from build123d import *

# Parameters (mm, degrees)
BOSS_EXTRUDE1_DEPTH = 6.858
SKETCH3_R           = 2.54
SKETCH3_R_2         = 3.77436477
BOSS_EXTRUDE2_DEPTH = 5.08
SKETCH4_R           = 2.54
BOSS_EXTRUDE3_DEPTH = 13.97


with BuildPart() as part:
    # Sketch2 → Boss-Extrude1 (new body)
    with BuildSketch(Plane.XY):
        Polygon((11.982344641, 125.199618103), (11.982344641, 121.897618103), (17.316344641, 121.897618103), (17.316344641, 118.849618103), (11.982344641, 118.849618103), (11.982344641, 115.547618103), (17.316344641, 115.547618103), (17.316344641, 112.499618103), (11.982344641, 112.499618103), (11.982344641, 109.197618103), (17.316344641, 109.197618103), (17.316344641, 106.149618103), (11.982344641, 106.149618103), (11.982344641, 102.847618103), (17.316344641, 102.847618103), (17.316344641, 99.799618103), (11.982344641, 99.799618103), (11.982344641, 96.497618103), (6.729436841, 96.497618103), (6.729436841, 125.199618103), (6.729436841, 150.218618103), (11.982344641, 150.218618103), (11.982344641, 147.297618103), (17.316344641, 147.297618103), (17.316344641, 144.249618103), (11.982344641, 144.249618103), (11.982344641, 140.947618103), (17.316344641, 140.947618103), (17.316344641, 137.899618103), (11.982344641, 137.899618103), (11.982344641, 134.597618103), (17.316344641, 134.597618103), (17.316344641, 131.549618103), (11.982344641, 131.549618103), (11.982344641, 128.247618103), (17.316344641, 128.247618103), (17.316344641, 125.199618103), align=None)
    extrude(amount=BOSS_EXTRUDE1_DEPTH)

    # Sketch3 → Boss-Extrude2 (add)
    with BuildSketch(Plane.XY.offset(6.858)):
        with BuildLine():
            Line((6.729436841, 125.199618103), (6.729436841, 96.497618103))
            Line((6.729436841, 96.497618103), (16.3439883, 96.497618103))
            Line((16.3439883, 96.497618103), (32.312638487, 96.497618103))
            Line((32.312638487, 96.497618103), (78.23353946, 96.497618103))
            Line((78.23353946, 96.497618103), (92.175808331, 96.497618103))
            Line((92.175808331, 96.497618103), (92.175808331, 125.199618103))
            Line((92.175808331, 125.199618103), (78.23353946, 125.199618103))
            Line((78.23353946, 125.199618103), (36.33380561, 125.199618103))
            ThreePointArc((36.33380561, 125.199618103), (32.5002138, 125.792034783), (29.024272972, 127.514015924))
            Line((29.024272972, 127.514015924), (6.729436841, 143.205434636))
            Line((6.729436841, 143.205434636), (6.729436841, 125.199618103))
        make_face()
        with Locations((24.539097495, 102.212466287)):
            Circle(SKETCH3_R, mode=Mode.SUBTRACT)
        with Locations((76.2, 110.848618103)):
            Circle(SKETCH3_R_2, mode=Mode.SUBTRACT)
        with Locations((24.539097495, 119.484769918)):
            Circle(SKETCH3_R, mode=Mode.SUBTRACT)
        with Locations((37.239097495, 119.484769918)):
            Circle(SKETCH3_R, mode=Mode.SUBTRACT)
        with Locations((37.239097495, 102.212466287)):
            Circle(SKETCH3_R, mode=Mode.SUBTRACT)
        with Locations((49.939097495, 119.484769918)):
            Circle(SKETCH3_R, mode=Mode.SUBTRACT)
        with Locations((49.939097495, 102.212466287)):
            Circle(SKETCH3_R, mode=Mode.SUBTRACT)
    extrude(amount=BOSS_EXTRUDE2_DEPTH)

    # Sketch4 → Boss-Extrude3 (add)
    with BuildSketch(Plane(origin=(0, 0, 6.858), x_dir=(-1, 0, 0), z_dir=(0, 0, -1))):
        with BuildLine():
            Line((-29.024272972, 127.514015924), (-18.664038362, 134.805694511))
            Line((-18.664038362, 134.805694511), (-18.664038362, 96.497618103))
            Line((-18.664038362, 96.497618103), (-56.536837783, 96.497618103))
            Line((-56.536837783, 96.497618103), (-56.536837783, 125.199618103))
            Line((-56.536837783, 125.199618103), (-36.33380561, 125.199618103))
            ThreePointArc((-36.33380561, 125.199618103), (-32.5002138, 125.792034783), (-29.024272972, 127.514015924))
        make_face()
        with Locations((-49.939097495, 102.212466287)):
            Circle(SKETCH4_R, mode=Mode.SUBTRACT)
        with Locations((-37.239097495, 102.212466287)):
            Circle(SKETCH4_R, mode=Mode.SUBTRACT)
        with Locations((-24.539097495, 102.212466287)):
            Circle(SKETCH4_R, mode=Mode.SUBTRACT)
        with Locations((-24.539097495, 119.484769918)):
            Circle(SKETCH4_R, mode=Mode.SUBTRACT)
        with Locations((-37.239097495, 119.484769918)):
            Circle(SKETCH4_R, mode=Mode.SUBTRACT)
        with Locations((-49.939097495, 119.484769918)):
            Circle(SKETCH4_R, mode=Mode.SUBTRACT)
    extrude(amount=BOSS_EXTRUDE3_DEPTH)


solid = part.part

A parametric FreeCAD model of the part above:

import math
import FreeCAD as App
import Part
import Sketcher
from FreeCAD import Vector
Q = App.Units.Quantity

doc = App.newDocument("Part")
body = doc.addObject("PartDesign::Body", "Body")

# Sketch on XY plane
sketch1 = doc.addObject("Sketcher::SketchObject", "Sketch")
body.addObject(sketch1)
sketch1.AttachmentSupport = (doc.XY_Plane, [""])
sketch1.MapMode = "FlatFace"
sketch1.addGeometry([
    Part.LineSegment(Vector(11.982345, 121.897618, 0), Vector(11.982345, 125.199618, 0)),  # 0
    Part.LineSegment(Vector(11.982345, 125.199618, 0), Vector(17.316345, 125.199618, 0)),  # 1
    Part.LineSegment(Vector(17.316345, 125.199618, 0), Vector(17.316345, 128.247618, 0)),  # 2
    Part.LineSegment(Vector(17.316345, 128.247618, 0), Vector(11.982345, 128.247618, 0)),  # 3
    Part.LineSegment(Vector(11.982345, 128.247618, 0), Vector(11.982345, 131.549618, 0)),  # 4
    Part.LineSegment(Vector(11.982345, 131.549618, 0), Vector(17.316345, 131.549618, 0)),  # 5
    Part.LineSegment(Vector(17.316345, 131.549618, 0), Vector(17.316345, 134.597618, 0)),  # 6
    Part.LineSegment(Vector(17.316345, 134.597618, 0), Vector(11.982345, 134.597618, 0)),  # 7
    Part.LineSegment(Vector(11.982345, 134.597618, 0), Vector(11.982345, 137.899618, 0)),  # 8
    Part.LineSegment(Vector(11.982345, 137.899618, 0), Vector(17.316345, 137.899618, 0)),  # 9
    Part.LineSegment(Vector(17.316345, 137.899618, 0), Vector(17.316345, 140.947618, 0)),  # 10
    Part.LineSegment(Vector(17.316345, 140.947618, 0), Vector(11.982345, 140.947618, 0)),  # 11
    Part.LineSegment(Vector(11.982345, 140.947618, 0), Vector(11.982345, 144.249618, 0)),  # 12
    Part.LineSegment(Vector(11.982345, 144.249618, 0), Vector(17.316345, 144.249618, 0)),  # 13
    Part.LineSegment(Vector(17.316345, 144.249618, 0), Vector(17.316345, 147.297618, 0)),  # 14
    Part.LineSegment(Vector(17.316345, 147.297618, 0), Vector(11.982345, 147.297618, 0)),  # 15
    Part.LineSegment(Vector(11.982345, 147.297618, 0), Vector(11.982345, 150.218618, 0)),  # 16
    Part.LineSegment(Vector(11.982345, 150.218618, 0), Vector(6.729437, 150.218618, 0)),  # 17
    Part.LineSegment(Vector(6.729437, 150.218618, 0), Vector(6.729437, 96.497618, 0)),  # 18
    Part.LineSegment(Vector(6.729437, 96.497618, 0), Vector(11.982345, 96.497618, 0)),  # 19
    Part.LineSegment(Vector(11.982345, 96.497618, 0), Vector(11.982345, 99.799618, 0)),  # 20
    Part.LineSegment(Vector(11.982345, 99.799618, 0), Vector(17.316345, 99.799618, 0)),  # 21
    Part.LineSegment(Vector(17.316345, 99.799618, 0), Vector(17.316345, 102.847618, 0)),  # 22
    Part.LineSegment(Vector(17.316345, 102.847618, 0), Vector(11.982345, 102.847618, 0)),  # 23
    Part.LineSegment(Vector(11.982345, 102.847618, 0), Vector(11.982345, 106.149618, 0)),  # 24
    Part.LineSegment(Vector(11.982345, 106.149618, 0), Vector(17.316345, 106.149618, 0)),  # 25
    Part.LineSegment(Vector(17.316345, 106.149618, 0), Vector(17.316345, 109.197618, 0)),  # 26
    Part.LineSegment(Vector(17.316345, 109.197618, 0), Vector(11.982345, 109.197618, 0)),  # 27
    Part.LineSegment(Vector(11.982345, 109.197618, 0), Vector(11.982345, 112.499618, 0)),  # 28
    Part.LineSegment(Vector(11.982345, 112.499618, 0), Vector(17.316345, 112.499618, 0)),  # 29
    Part.LineSegment(Vector(17.316345, 112.499618, 0), Vector(17.316345, 115.547618, 0)),  # 30
    Part.LineSegment(Vector(17.316345, 115.547618, 0), Vector(11.982345, 115.547618, 0)),  # 31
    Part.LineSegment(Vector(11.982345, 115.547618, 0), Vector(11.982345, 118.849618, 0)),  # 32
    Part.LineSegment(Vector(11.982345, 118.849618, 0), Vector(17.316345, 118.849618, 0)),  # 33
    Part.LineSegment(Vector(17.316345, 118.849618, 0), Vector(17.316345, 121.897618, 0)),  # 34
    Part.LineSegment(Vector(17.316345, 121.897618, 0), Vector(11.982345, 121.897618, 0)),  # 35
], False)
sketch1.addConstraint([
    Sketcher.Constraint("Coincident", 0, 2, 1, 1),
    Sketcher.Constraint("Coincident", 1, 2, 2, 1),
    Sketcher.Constraint("Coincident", 2, 2, 3, 1),
    Sketcher.Constraint("Coincident", 3, 2, 4, 1),
    Sketcher.Constraint("Coincident", 4, 2, 5, 1),
    Sketcher.Constraint("Coincident", 5, 2, 6, 1),
    Sketcher.Constraint("Coincident", 6, 2, 7, 1),
    Sketcher.Constraint("Coincident", 7, 2, 8, 1),
    Sketcher.Constraint("Coincident", 8, 2, 9, 1),
    Sketcher.Constraint("Coincident", 9, 2, 10, 1),
    Sketcher.Constraint("Coincident", 10, 2, 11, 1),
    Sketcher.Constraint("Coincident", 11, 2, 12, 1),
    Sketcher.Constraint("Coincident", 12, 2, 13, 1),
    Sketcher.Constraint("Coincident", 13, 2, 14, 1),
    Sketcher.Constraint("Coincident", 14, 2, 15, 1),
    Sketcher.Constraint("Coincident", 15, 2, 16, 1),
    Sketcher.Constraint("Coincident", 16, 2, 17, 1),
    Sketcher.Constraint("Coincident", 17, 2, 18, 1),
    Sketcher.Constraint("Coincident", 18, 2, 19, 1),
    Sketcher.Constraint("Coincident", 19, 2, 20, 1),
    Sketcher.Constraint("Coincident", 20, 2, 21, 1),
    Sketcher.Constraint("Coincident", 21, 2, 22, 1),
    Sketcher.Constraint("Coincident", 22, 2, 23, 1),
    Sketcher.Constraint("Coincident", 23, 2, 24, 1),
    Sketcher.Constraint("Coincident", 24, 2, 25, 1),
    Sketcher.Constraint("Coincident", 25, 2, 26, 1),
    Sketcher.Constraint("Coincident", 26, 2, 27, 1),
    Sketcher.Constraint("Coincident", 27, 2, 28, 1),
    Sketcher.Constraint("Coincident", 28, 2, 29, 1),
    Sketcher.Constraint("Coincident", 29, 2, 30, 1),
    Sketcher.Constraint("Coincident", 30, 2, 31, 1),
    Sketcher.Constraint("Coincident", 31, 2, 32, 1),
    Sketcher.Constraint("Coincident", 32, 2, 33, 1),
    Sketcher.Constraint("Coincident", 33, 2, 34, 1),
    Sketcher.Constraint("Coincident", 34, 2, 35, 1),
    Sketcher.Constraint("Coincident", 35, 2, 0, 1),
    Sketcher.Constraint("Vertical", 0),
    Sketcher.Constraint("Horizontal", 1),
    Sketcher.Constraint("Vertical", 2),
    Sketcher.Constraint("Horizontal", 3),
    Sketcher.Constraint("Vertical", 4),
    Sketcher.Constraint("Horizontal", 5),
    Sketcher.Constraint("Vertical", 6),
    Sketcher.Constraint("Horizontal", 7),
    Sketcher.Constraint("Vertical", 8),
    Sketcher.Constraint("Horizontal", 9),
    Sketcher.Constraint("Vertical", 10),
    Sketcher.Constraint("Horizontal", 11),
    Sketcher.Constraint("Vertical", 12),
    Sketcher.Constraint("Horizontal", 13),
    Sketcher.Constraint("Vertical", 14),
    Sketcher.Constraint("Horizontal", 15),
    Sketcher.Constraint("Vertical", 16),
    Sketcher.Constraint("Horizontal", 17),
    Sketcher.Constraint("Vertical", 18),
    Sketcher.Constraint("Horizontal", 19),
    Sketcher.Constraint("Vertical", 20),
    Sketcher.Constraint("Horizontal", 21),
    Sketcher.Constraint("Vertical", 22),
    Sketcher.Constraint("Horizontal", 23),
    Sketcher.Constraint("Vertical", 24),
    Sketcher.Constraint("Horizontal", 25),
    Sketcher.Constraint("Vertical", 26),
    Sketcher.Constraint("Horizontal", 27),
    Sketcher.Constraint("Vertical", 28),
    Sketcher.Constraint("Horizontal", 29),
    Sketcher.Constraint("Vertical", 30),
    Sketcher.Constraint("Horizontal", 31),
    Sketcher.Constraint("Vertical", 32),
    Sketcher.Constraint("Horizontal", 33),
    Sketcher.Constraint("Vertical", 34),
    Sketcher.Constraint("Horizontal", 35),
    Sketcher.Constraint("Vertical", 0, 2, 3, 2),
    Sketcher.Constraint("Vertical", 2, 2, 5, 2),
    Sketcher.Constraint("Vertical", 4, 2, 7, 2),
    Sketcher.Constraint("Vertical", 6, 2, 9, 2),
    Sketcher.Constraint("Vertical", 8, 2, 11, 2),
    Sketcher.Constraint("Vertical", 10, 2, 13, 2),
    Sketcher.Constraint("Vertical", 12, 2, 15, 2),
    Sketcher.Constraint("Vertical", 16, 2, 19, 2),
    Sketcher.Constraint("Vertical", 14, 2, 21, 2),
    Sketcher.Constraint("Vertical", 20, 2, 23, 2),
    Sketcher.Constraint("Vertical", 22, 2, 25, 2),
    Sketcher.Constraint("Vertical", 24, 2, 27, 2),
    Sketcher.Constraint("Vertical", 26, 2, 29, 2),
    Sketcher.Constraint("Vertical", 28, 2, 31, 2),
    Sketcher.Constraint("Vertical", 30, 2, 33, 2),
    Sketcher.Constraint("Equal", 0, 4),
    Sketcher.Constraint("Equal", 2, 6),
    Sketcher.Constraint("Equal", 4, 8),
    Sketcher.Constraint("Equal", 6, 10),
    Sketcher.Constraint("Equal", 8, 12),
    Sketcher.Constraint("Equal", 10, 14),
    Sketcher.Constraint("Equal", 12, 20),
    Sketcher.Constraint("Equal", 14, 22),
    Sketcher.Constraint("Equal", 20, 24),
    Sketcher.Constraint("Equal", 22, 26),
    Sketcher.Constraint("Equal", 24, 28),
    Sketcher.Constraint("Equal", 26, 30),
    Sketcher.Constraint("Equal", 28, 32),
    Sketcher.Constraint("Equal", 30, 34),
    Sketcher.Constraint("DistanceY", 20, 2, 0, 2, Q("1 in")),
    Sketcher.Constraint("DistanceX", 1, 1, 1, 2, Q("0.21 in")),
    Sketcher.Constraint("DistanceY", 0, 1, 0, 2, Q("0.13 in")),
    Sketcher.Constraint("DistanceY", 16, 1, 16, 2, Q("0.115 in")),
    Sketcher.Constraint("DistanceX", 17, 2, 17, 1, 5.252908),
    Sketcher.Constraint("DistanceY", -1, 1, 0, 2, 125.199618),
    Sketcher.Constraint("DistanceX", -1, 1, 0, 2, 11.982345),
])
pad1 = doc.addObject("PartDesign::Pad", "Pad")
body.addObject(pad1)
pad1.Profile = sketch1
pad1.Length = Q("0.27 in")

# Sketch on XY plane
sketch2 = doc.addObject("Sketcher::SketchObject", "Sketch001")
body.addObject(sketch2)
sketch2.AttachmentSupport = (doc.XY_Plane, [""])
sketch2.MapMode = "FlatFace"
sketch2.AttachmentOffset = App.Placement(Vector(0, 0, 0.27 * 25.4), App.Rotation())
sketch2.addGeometry([
    Part.LineSegment(Vector(6.729437, 96.497618, 0), Vector(92.175808, 96.497618, 0)),  # 0
    Part.LineSegment(Vector(92.175808, 96.497618, 0), Vector(92.175808, 125.199618, 0)),  # 1
    Part.LineSegment(Vector(92.175808, 125.199618, 0), Vector(36.333806, 125.199618, 0)),  # 2
    Part.ArcOfCircle(Part.Circle(Vector(36.333806, 137.899618, 0), Vector(0, 0, 1), 12.7), math.radians(-125.138421), math.radians(-90)),  # 3
    Part.LineSegment(Vector(29.024273, 127.514016, 0), Vector(6.729437, 143.205435, 0)),  # 4
    Part.LineSegment(Vector(6.729437, 143.205435, 0), Vector(6.729437, 96.497618, 0)),  # 5
    Part.Circle(Vector(24.539097, 102.212466, 0), Vector(0, 0, 1), 2.54),  # 6
    Part.Circle(Vector(37.239097, 102.212466, 0), Vector(0, 0, 1), 2.54),  # 7
    Part.Circle(Vector(49.939097, 102.212466, 0), Vector(0, 0, 1), 2.54),  # 8
    Part.Circle(Vector(24.539097, 119.48477, 0), Vector(0, 0, 1), 2.54),  # 9
    Part.Circle(Vector(37.239097, 119.48477, 0), Vector(0, 0, 1), 2.54),  # 10
    Part.Circle(Vector(49.939097, 119.48477, 0), Vector(0, 0, 1), 2.54),  # 11
    Part.Circle(Vector(76.2, 110.848618, 0), Vector(0, 0, 1), 3.774365),  # 12
], False)
sketch2.addConstraint([
    Sketcher.Constraint("Coincident", 0, 2, 1, 1),
    Sketcher.Constraint("Coincident", 1, 2, 2, 1),
    Sketcher.Constraint("Tangent", 2, 2, 3, 2),
    Sketcher.Constraint("Tangent", 3, 1, 4, 1),
    Sketcher.Constraint("Coincident", 4, 2, 5, 1),
    Sketcher.Constraint("Coincident", 5, 2, 0, 1),
    Sketcher.Constraint("Horizontal", 0),
    Sketcher.Constraint("Vertical", 1),
    Sketcher.Constraint("Horizontal", 2),
    Sketcher.Constraint("Vertical", 5),
    Sketcher.Constraint("Equal", 6, 7),
    Sketcher.Constraint("Equal", 7, 8),
    Sketcher.Constraint("Equal", 8, 9),
    Sketcher.Constraint("Equal", 9, 10),
    Sketcher.Constraint("Equal", 10, 11),
    Sketcher.Constraint("Horizontal", 6, 3, 7, 3),
    Sketcher.Constraint("Horizontal", 7, 3, 8, 3),
    Sketcher.Constraint("Horizontal", 9, 3, 10, 3),
    Sketcher.Constraint("Horizontal", 10, 3, 11, 3),
    Sketcher.Constraint("Vertical", 6, 3, 9, 3),
    Sketcher.Constraint("Vertical", 7, 3, 10, 3),
    Sketcher.Constraint("Vertical", 8, 3, 11, 3),
    Sketcher.Constraint("Diameter", 6, Q("0.2 in")),
    Sketcher.Constraint("Radius", 3, Q("0.5 in")),
    Sketcher.Constraint("DistanceX", -1, 1, 12, 3, Q("3 in")),
    Sketcher.Constraint("DistanceX", 6, 3, 8, 3, Q("1 in")),
    Sketcher.Constraint("DistanceY", 1, 1, 1, 2, Q("1.13 in")),
    Sketcher.Constraint("DistanceX", 6, 3, 7, 3, Q("0.5 in")),
    Sketcher.Constraint("Diameter", 12, 7.54873),
    Sketcher.Constraint("DistanceY", 12, 3, 3, 3, Q("1.065 in")),
    Sketcher.Constraint("DistanceX", 0, 1, 0, 2, 85.446371),
    Sketcher.Constraint("Distance", 4, 27.263168),
    Sketcher.Constraint("DistanceX", 2, 2, 2, 1, 55.842003),
    Sketcher.Constraint("DistanceY", -1, 1, 3, 3, 137.899618),
    Sketcher.Constraint("DistanceY", -1, 1, 9, 3, 119.48477),
    Sketcher.Constraint("DistanceX", -1, 1, 0, 2, 92.175808),
    Sketcher.Constraint("DistanceX", 6, 3, 3, 3, 11.794708),
    Sketcher.Constraint("DistanceY", 6, 3, 3, 3, 35.687152),
])
pad2 = doc.addObject("PartDesign::Pad", "Pad001")
body.addObject(pad2)
pad2.Profile = sketch2
pad2.Length = Q("0.2 in")

# Sketch on XY plane
sketch3 = doc.addObject("Sketcher::SketchObject", "Sketch002")
body.addObject(sketch3)
sketch3.AttachmentSupport = (doc.XY_Plane, [""])
sketch3.MapMode = "FlatFace"
sketch3.AttachmentOffset = App.Placement(Vector(0, 0, 0.27 * 25.4), App.Rotation())
sketch3.addGeometry([
    Part.LineSegment(Vector(18.664038, 134.805695, 0), Vector(29.024273, 127.514016, 0)),  # 0
    Part.ArcOfCircle(Part.Circle(Vector(36.333806, 137.899618, 0), Vector(0, 0, 1), 12.7), math.radians(-125.138421), math.radians(-90)),  # 1
    Part.LineSegment(Vector(36.333806, 125.199618, 0), Vector(56.536838, 125.199618, 0)),  # 2
    Part.LineSegment(Vector(56.536838, 125.199618, 0), Vector(56.536838, 96.497618, 0)),  # 3
    Part.LineSegment(Vector(56.536838, 96.497618, 0), Vector(18.664038, 96.497618, 0)),  # 4
    Part.LineSegment(Vector(18.664038, 96.497618, 0), Vector(18.664038, 134.805695, 0)),  # 5
    Part.Circle(Vector(24.539097, 102.212466, 0), Vector(0, 0, 1), 2.54),  # 6
    Part.Circle(Vector(37.239097, 102.212466, 0), Vector(0, 0, 1), 2.54),  # 7
    Part.Circle(Vector(49.939097, 102.212466, 0), Vector(0, 0, 1), 2.54),  # 8
    Part.Circle(Vector(24.539097, 119.48477, 0), Vector(0, 0, 1), 2.54),  # 9
    Part.Circle(Vector(37.239097, 119.48477, 0), Vector(0, 0, 1), 2.54),  # 10
    Part.Circle(Vector(49.939097, 119.48477, 0), Vector(0, 0, 1), 2.54),  # 11
], False)
sketch3.addConstraint([
    Sketcher.Constraint("Tangent", 0, 2, 1, 1),
    Sketcher.Constraint("Tangent", 1, 2, 2, 1),
    Sketcher.Constraint("Coincident", 2, 2, 3, 1),
    Sketcher.Constraint("Coincident", 3, 2, 4, 1),
    Sketcher.Constraint("Coincident", 4, 2, 5, 1),
    Sketcher.Constraint("Coincident", 5, 2, 0, 1),
    Sketcher.Constraint("Horizontal", 2),
    Sketcher.Constraint("Vertical", 3),
    Sketcher.Constraint("Horizontal", 4),
    Sketcher.Constraint("Vertical", 5),
    Sketcher.Constraint("Equal", 6, 7),
    Sketcher.Constraint("Equal", 7, 8),
    Sketcher.Constraint("Equal", 8, 9),
    Sketcher.Constraint("Equal", 9, 10),
    Sketcher.Constraint("Equal", 10, 11),
    Sketcher.Constraint("Horizontal", 6, 3, 7, 3),
    Sketcher.Constraint("Horizontal", 7, 3, 8, 3),
    Sketcher.Constraint("Horizontal", 9, 3, 10, 3),
    Sketcher.Constraint("Horizontal", 10, 3, 11, 3),
    Sketcher.Constraint("Vertical", 6, 3, 9, 3),
    Sketcher.Constraint("Vertical", 7, 3, 10, 3),
    Sketcher.Constraint("Vertical", 8, 3, 11, 3),
    Sketcher.Constraint("Diameter", 6, Q("0.2 in")),
    Sketcher.Constraint("Radius", 1, Q("0.5 in")),
    Sketcher.Constraint("DistanceX", 6, 3, 8, 3, Q("1 in")),
    Sketcher.Constraint("DistanceY", 3, 2, 3, 1, Q("1.13 in")),
    Sketcher.Constraint("DistanceX", 6, 3, 7, 3, Q("0.5 in")),
    Sketcher.Constraint("DistanceX", 4, 2, 4, 1, 37.872799),
    Sketcher.Constraint("Distance", 0, 12.668979),
    Sketcher.Constraint("DistanceX", 2, 1, 2, 2, 20.203032),
    Sketcher.Constraint("DistanceY", -1, 1, 1, 3, 137.899618),
    Sketcher.Constraint("DistanceY", -1, 1, 9, 3, 119.48477),
    Sketcher.Constraint("DistanceX", -1, 1, 4, 2, 18.664038),
    Sketcher.Constraint("DistanceX", 6, 3, 1, 3, 11.794708),
    Sketcher.Constraint("DistanceY", 6, 3, 1, 3, 35.687152),
])
pad3 = doc.addObject("PartDesign::Pad", "Pad002")
body.addObject(pad3)
pad3.Profile = sketch3
pad3.Length = Q("0.55 in")
pad3.Reversed = True

doc.recompute()
